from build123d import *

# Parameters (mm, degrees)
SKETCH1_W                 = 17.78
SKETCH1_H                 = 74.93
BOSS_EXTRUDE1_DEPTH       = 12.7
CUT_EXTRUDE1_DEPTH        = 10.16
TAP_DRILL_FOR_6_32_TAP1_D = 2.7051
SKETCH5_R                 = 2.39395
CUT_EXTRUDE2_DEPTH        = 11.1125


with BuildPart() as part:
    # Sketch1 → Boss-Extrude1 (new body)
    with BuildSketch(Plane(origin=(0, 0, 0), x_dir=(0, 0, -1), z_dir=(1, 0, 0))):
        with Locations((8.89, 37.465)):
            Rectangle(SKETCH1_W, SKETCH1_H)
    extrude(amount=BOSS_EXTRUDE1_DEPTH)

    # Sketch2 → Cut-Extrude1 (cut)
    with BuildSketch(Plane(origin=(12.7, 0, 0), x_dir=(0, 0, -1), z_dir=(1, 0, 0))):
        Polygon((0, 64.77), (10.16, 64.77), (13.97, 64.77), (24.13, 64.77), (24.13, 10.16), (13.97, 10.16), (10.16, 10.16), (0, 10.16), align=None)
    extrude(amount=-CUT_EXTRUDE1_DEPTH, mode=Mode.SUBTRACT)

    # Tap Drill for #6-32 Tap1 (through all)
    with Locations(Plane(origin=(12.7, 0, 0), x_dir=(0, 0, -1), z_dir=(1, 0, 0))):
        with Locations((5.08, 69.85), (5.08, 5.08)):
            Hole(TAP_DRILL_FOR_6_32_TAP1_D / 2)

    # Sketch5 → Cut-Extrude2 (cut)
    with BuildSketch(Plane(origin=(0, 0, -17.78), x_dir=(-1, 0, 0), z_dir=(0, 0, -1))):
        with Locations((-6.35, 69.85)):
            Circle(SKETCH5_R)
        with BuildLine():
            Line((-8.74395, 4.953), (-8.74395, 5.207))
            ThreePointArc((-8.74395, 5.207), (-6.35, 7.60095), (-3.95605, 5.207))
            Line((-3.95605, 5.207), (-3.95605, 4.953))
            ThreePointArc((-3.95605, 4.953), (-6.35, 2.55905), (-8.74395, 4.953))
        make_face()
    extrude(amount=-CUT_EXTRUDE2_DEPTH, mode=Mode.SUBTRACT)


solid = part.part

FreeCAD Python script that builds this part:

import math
import FreeCAD as App
import Part
import Sketcher

V = App.Vector
Q = App.Units.Quantity


def add_polygon(sketch, points):
    """Adds a closed chain of lines whose ends are joined by coincident constraints."""
    first, n = sketch.GeometryCount, len(points)
    for a, b in zip(points, points[1:] + points[:1]):
        sketch.addGeometry(Part.LineSegment(App.Vector(*a, 0), App.Vector(*b, 0)), False)
    for i in range(n):
        sketch.addConstraint(Sketcher.Constraint("Coincident", first + i, 2, first + (i + 1) % n, 1))

doc = App.newDocument("Part")
body = doc.addObject("PartDesign::Body", "Body")

# Sketch on YZ plane
sketch1 = doc.addObject("Sketcher::SketchObject", "Sketch")
body.addObject(sketch1)
sketch1.AttachmentSupport = (doc.YZ_Plane, [""])
sketch1.MapMode = "FlatFace"
add_polygon(sketch1, [(75, 0), (0, 0), (0, -18), (75, -18)])  # lines 0-3
sketch1.addConstraint([
    Sketcher.Constraint("Horizontal", 0),
    Sketcher.Constraint("Vertical", 1),
    Sketcher.Constraint("Horizontal", 2),
    Sketcher.Constraint("Vertical", 3),
    Sketcher.Constraint("Coincident", 0, 2, -1, 1),
    Sketcher.Constraint("DistanceY", 1, 2, 1, 1, Q("0.7 in")),
    Sketcher.Constraint("DistanceX", 0, 2, 0, 1, Q("2.95 in")),
])
pad1 = doc.addObject("PartDesign::Pad", "Pad")
body.addObject(pad1)
pad1.Profile = sketch1
pad1.Length = Q("0.5 in")

# Sketch on YZ plane
sketch2 = doc.addObject("Sketcher::SketchObject", "Sketch001")
body.addObject(sketch2)
sketch2.AttachmentSupport = (doc.YZ_Plane, [""])
sketch2.MapMode = "FlatFace"
sketch2.AttachmentOffset = App.Placement(V(0, 0, 0.5 * 25.4), App.Rotation())
add_polygon(sketch2, [(65, -24), (65, 0), (10, 0), (10, -24)])  # lines 0-3
sketch2.addConstraint([
    Sketcher.Constraint("Vertical", 0),
    Sketcher.Constraint("Horizontal", 1),
    Sketcher.Constraint("Vertical", 2),
    Sketcher.Constraint("Horizontal", 3),
    Sketcher.Constraint("PointOnObject", 0, 2, -1),
    Sketcher.Constraint("DistanceX", 1, 2, 1, 1, Q("2.15 in")),
    Sketcher.Constraint("DistanceY", 0, 1, 0, 2, Q("0.95 in")),
    Sketcher.Constraint("DistanceX", -1, 1, 1, 2, Q("0.4 in")),
])
pocket1 = doc.addObject("PartDesign::Pocket", "Pocket")
body.addObject(pocket1)
pocket1.Profile = sketch2
pocket1.Length = Q("0.4 in")

# Sketch on YZ plane
sketch3 = doc.addObject("Sketcher::SketchObject", "Sketch002")
body.addObject(sketch3)
sketch3.AttachmentSupport = (doc.YZ_Plane, [""])
sketch3.MapMode = "FlatFace"
sketch3.AttachmentOffset = App.Placement(V(0, 0, 0.5 * 25.4), App.Rotation())
sketch3.addGeometry([
    Part.Circle(V(69.8, -5.1, 0), V(0, 0, 1), 1.4),
    Part.Circle(V(5.1, -5.1, 0), V(0, 0, 1), 1.4),
], False)
sketch3.addConstraint([
    Sketcher.Constraint("Equal", 0, 1),
    Sketcher.Constraint("Horizontal", 0, 3, 1, 3),
    Sketcher.Constraint("Diameter", 0, Q("0.1065 in")),
    Sketcher.Constraint("DistanceY", 0, 3, -1, 1, Q("0.2 in")),
    Sketcher.Constraint("DistanceX", -1, 1, 1, 3, Q("0.2 in")),
    Sketcher.Constraint("DistanceX", -1, 1, 0, 3, Q("2.75 in")),
])
doc.recompute()
hole = doc.addObject("PartDesign::Hole", "Hole")
body.addObject(hole)
hole.Profile = sketch3
hole.ThreadType = "None"
hole.Diameter = Q("0.1065 in")
hole.DepthType = "ThroughAll"

# Sketch on XY plane
sketch4 = doc.addObject("Sketcher::SketchObject", "Sketch003")
body.addObject(sketch4)
sketch4.AttachmentSupport = (doc.XY_Plane, [""])
sketch4.MapMode = "FlatFace"
sketch4.AttachmentOffset = App.Placement(V(0, 0, -0.7 * 25.4), App.Rotation())
sketch4.addGeometry([
    Part.Circle(V(6.35, 69.85, 0), V(0, 0, 1), 2.39),  # 0
    Part.LineSegment(V(8.74, 5.21, 0), V(8.74, 4.95, 0)),  # 1
    Part.ArcOfCircle(Part.Circle(V(6.35, 4.95, 0), V(0, 0, 1), 2.39), math.radians(180), math.radians(360)),  # 2
    Part.LineSegment(V(3.96, 4.95, 0), V(3.96, 5.21, 0)),  # 3
    Part.ArcOfCircle(Part.Circle(V(6.35, 5.21, 0), V(0, 0, 1), 2.39), math.radians(0), math.radians(180)),  # 4
], False)
sketch4.addConstraint([
    Sketcher.Constraint("Tangent", 1, 2, 2, 2),
    Sketcher.Constraint("Tangent", 2, 1, 3, 1),
    Sketcher.Constraint("Tangent", 3, 2, 4, 2),
    Sketcher.Constraint("Tangent", 4, 1, 1, 1),
    Sketcher.Constraint("Vertical", 1),
    Sketcher.Constraint("Vertical", 3),
    Sketcher.Constraint("Equal", 0, 2),
    Sketcher.Constraint("Vertical", 0, 3, 2, 3),
    Sketcher.Constraint("Diameter", 0, Q("0.1885 in")),
    Sketcher.Constraint("DistanceY", 1, 2, 1, 1, Q("0.01 in")),
    Sketcher.Constraint("DistanceX", -1, 1, 0, 3, Q("0.25 in")),
    Sketcher.Constraint("DistanceY", -1, 1, 0, 3, Q("2.75 in")),
    Sketcher.Constraint("DistanceY", -1, 1, 2, 3, Q("0.195 in")),
])
pocket2 = doc.addObject("PartDesign::Pocket", "Pocket001")
body.addObject(pocket2)
pocket2.Profile = sketch4
pocket2.Length = Q("0.4375 in")
pocket2.Reversed = True

doc.recompute()
